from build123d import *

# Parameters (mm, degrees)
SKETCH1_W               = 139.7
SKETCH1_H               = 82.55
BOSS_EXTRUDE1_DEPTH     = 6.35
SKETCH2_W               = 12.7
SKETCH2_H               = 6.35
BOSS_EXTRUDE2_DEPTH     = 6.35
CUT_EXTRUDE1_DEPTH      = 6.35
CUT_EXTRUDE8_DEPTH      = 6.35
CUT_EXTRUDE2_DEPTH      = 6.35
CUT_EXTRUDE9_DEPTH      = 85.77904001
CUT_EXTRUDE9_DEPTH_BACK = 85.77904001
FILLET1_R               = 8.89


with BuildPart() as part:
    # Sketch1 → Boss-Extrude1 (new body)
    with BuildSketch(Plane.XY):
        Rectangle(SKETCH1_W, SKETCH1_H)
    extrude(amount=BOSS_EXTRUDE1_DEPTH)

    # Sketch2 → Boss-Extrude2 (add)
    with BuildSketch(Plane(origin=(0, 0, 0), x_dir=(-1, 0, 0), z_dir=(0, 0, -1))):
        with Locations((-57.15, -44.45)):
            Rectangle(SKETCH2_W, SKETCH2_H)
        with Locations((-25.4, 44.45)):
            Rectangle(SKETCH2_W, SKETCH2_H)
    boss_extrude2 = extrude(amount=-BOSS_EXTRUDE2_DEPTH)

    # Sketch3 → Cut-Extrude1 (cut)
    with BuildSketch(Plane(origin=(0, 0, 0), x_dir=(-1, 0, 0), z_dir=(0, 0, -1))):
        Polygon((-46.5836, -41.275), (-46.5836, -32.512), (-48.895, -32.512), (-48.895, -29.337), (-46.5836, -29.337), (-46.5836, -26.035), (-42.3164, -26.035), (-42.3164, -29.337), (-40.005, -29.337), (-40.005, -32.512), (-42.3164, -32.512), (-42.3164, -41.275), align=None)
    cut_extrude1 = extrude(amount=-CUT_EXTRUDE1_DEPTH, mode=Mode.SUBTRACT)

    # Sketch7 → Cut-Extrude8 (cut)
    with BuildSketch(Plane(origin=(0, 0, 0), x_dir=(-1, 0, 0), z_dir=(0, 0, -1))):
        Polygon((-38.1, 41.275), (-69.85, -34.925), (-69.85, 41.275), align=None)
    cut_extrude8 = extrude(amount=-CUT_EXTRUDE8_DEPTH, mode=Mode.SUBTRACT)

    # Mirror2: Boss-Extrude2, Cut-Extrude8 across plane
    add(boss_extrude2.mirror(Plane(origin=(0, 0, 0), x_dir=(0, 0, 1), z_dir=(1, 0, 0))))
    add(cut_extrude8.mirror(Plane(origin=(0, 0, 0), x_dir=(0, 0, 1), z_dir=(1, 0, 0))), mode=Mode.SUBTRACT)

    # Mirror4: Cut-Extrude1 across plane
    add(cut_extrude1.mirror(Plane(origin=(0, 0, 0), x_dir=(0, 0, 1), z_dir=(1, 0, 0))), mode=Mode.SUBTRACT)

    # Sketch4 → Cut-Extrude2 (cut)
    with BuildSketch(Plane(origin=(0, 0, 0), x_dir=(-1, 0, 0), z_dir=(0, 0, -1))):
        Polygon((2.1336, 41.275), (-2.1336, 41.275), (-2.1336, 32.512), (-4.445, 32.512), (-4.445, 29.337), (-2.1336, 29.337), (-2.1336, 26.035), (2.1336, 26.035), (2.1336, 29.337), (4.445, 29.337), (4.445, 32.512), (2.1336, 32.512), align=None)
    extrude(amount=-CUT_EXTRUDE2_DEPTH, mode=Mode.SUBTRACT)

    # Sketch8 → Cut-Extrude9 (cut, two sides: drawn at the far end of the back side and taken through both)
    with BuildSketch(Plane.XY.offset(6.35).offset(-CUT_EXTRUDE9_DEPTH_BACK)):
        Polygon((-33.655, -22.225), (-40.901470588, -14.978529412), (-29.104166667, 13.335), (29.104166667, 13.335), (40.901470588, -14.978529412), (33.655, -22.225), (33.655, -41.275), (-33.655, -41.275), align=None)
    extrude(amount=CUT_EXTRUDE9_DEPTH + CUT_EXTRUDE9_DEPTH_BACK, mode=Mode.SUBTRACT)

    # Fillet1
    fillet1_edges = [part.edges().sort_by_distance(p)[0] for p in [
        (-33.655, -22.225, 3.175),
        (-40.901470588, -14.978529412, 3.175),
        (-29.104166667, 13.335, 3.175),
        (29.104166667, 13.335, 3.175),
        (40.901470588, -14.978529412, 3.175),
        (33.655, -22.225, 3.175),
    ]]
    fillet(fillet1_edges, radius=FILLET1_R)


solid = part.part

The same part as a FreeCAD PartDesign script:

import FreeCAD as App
import Part
import Sketcher
from FreeCAD import Vector
Q = App.Units.Quantity


def edges_at(feature, points):
    """Names of the edges that pass closest to the given points."""
    edges = feature.Shape.Edges
    near = lambda p: min(range(len(edges)), key=lambda i: edges[i].distToShape(Part.Vertex(*p))[0])
    return sorted({f"Edge{near(p) + 1}" for p in points})


def add_polygon(sketch, points):
    """Adds a closed chain of lines whose ends are joined by coincident constraints."""
    first, n = sketch.GeometryCount, len(points)
    for a, b in zip(points, points[1:] + points[:1]):
        sketch.addGeometry(Part.LineSegment(App.Vector(*a, 0), App.Vector(*b, 0)), False)
    for i in range(n):
        sketch.addConstraint(Sketcher.Constraint("Coincident", first + i, 2, first + (i + 1) % n, 1))

doc = App.newDocument("Part")
params = doc.addObject("Spreadsheet::Sheet", "Params")
for row, (alias, value) in enumerate([
    ("sketch1_width", "5.5 in"),
    ("sketch1_height", "3.25 in"),
    ("pad1_length", "0.25 in"),
    ("sketch2_width", "0.5 in"),
    ("sketch2_height", "0.25 in"),
    ("pad2_length", "0.25 in"),
    ("sketch3_height", "0.13 in"),
    ("sketch3_width", "0.168 in"),
    ("sketch3_width2", "0.091 in"),
    ("sketch3_height2", "0.345 in"),
    ("pocket1_length", "0.25 in"),
    ("sketch4_height", "3 in"),
    ("sketch4_width", "1.25 in"),
    ("pocket2_length", "0.25 in"),
    ("sketch5_height", "0.13 in"),
    ("sketch5_width", "0.168 in"),
    ("sketch5_width2", "0.091 in"),
    ("sketch5_height2", "0.345 in"),
    ("pocket3_length", "0.25 in"),
    ("sketch6_width", "2.65 in"),
    ("sketch6_height", "0.75 in"),
    ("fillet_radius", "0.35 in"),
], start=1):
    params.set(f"A{row}", alias)
    params.set(f"B{row}", "=" + value)
    params.setAlias(f"B{row}", alias)

body = doc.addObject("PartDesign::Body", "Body")

# Sketch on XY plane
sketch1 = body.newObject("Sketcher::SketchObject", "Sketch")
sketch1.AttachmentSupport = (doc.getObject("XY_Plane"), [""])
sketch1.MapMode = "FlatFace"
add_polygon(sketch1, [(-70, 41), (-70, -41), (70, -41), (70, 41)])  # lines 0-3
sketch1.addConstraint(Sketcher.Constraint("Vertical", 0))
sketch1.addConstraint(Sketcher.Constraint("Horizontal", 1))
sketch1.addConstraint(Sketcher.Constraint("Vertical", 2))
sketch1.addConstraint(Sketcher.Constraint("Horizontal", 3))
sketch1.addConstraint(Sketcher.Constraint("Symmetric", 0, 2, 2, 2, -1, 1))
sketch1.addConstraint(Sketcher.Constraint("DistanceX", 1, 1, 1, 2, Q("5.5 in")))
sketch1.addConstraint(Sketcher.Constraint("DistanceY", 0, 2, 0, 1, Q("3.25 in")))
sketch1.setExpression("Constraints[9]", "Params.sketch1_width")
sketch1.setExpression("Constraints[10]", "Params.sketch1_height")
pad1 = body.newObject("PartDesign::Pad", "Pad")
pad1.Profile = sketch1
pad1.setExpression("Length", "Params.pad1_length")

# Sketch on XY plane
sketch2 = body.newObject("Sketcher::SketchObject", "Sketch001")
sketch2.AttachmentSupport = (doc.getObject("XY_Plane"), [""])
sketch2.MapMode = "FlatFace"
add_polygon(sketch2, [(64, -41), (64, -48), (51, -48), (51, -41)])  # lines 0-3
add_polygon(sketch2, [(32, 48), (32, 41), (19, 41), (19, 48)])  # lines 4-7
sketch2.addConstraint(Sketcher.Constraint("Vertical", 0))
sketch2.addConstraint(Sketcher.Constraint("Horizontal", 1))
sketch2.addConstraint(Sketcher.Constraint("Vertical", 2))
sketch2.addConstraint(Sketcher.Constraint("Horizontal", 3))
sketch2.addConstraint(Sketcher.Constraint("Vertical", 4))
sketch2.addConstraint(Sketcher.Constraint("Horizontal", 5))
sketch2.addConstraint(Sketcher.Constraint("Vertical", 6))
sketch2.addConstraint(Sketcher.Constraint("Horizontal", 7))
sketch2.addConstraint(Sketcher.Constraint("Equal", 3, 5))
sketch2.addConstraint(Sketcher.Constraint("Equal", 2, 4))
sketch2.addConstraint(Sketcher.Constraint("DistanceX", 1, 2, 1, 1, Q("0.5 in")))
sketch2.addConstraint(Sketcher.Constraint("DistanceX", -1, 1, 1, 2, Q("2 in")))
sketch2.addConstraint(Sketcher.Constraint("DistanceY", 0, 2, 0, 1, Q("0.25 in")))
sketch2.addConstraint(Sketcher.Constraint("DistanceY", 1, 2, 4, 2, Q("3.5 in")))
sketch2.addConstraint(Sketcher.Constraint("DistanceX", -1, 1, 4, 2, Q("1.25 in")))
sketch2.addConstraint(Sketcher.Constraint("DistanceY", 0, 2, -1, 1, Q("1.875 in")))
sketch2.setExpression("Constraints[18]", "Params.sketch2_width")
sketch2.setExpression("Constraints[20]", "Params.sketch2_height")
pad2 = body.newObject("PartDesign::Pad", "Pad001")
pad2.Profile = sketch2
pad2.setExpression("Length", "Params.pad2_length")

# Sketch on XY plane
sketch3 = body.newObject("Sketcher::SketchObject", "Sketch002")
sketch3.AttachmentSupport = (doc.getObject("XY_Plane"), [""])
sketch3.MapMode = "FlatFace"
add_polygon(sketch3, [(46.6, -32.5), (46.6, -41.3), (42.3, -41.3), (42.3, -32.5), (40, -32.5), (40, -29.3), (42.3, -29.3), (42.3, -26), (46.6, -26), (46.6, -29.3), (48.9, -29.3), (48.9, -32.5)])  # lines 0-11
sketch3.addConstraint(Sketcher.Constraint("Vertical", 0))
sketch3.addConstraint(Sketcher.Constraint("Horizontal", 1))
sketch3.addConstraint(Sketcher.Constraint("Vertical", 2))
sketch3.addConstraint(Sketcher.Constraint("Horizontal", 3))
sketch3.addConstraint(Sketcher.Constraint("Vertical", 4))
sketch3.addConstraint(Sketcher.Constraint("Horizontal", 5))
sketch3.addConstraint(Sketcher.Constraint("Vertical", 6))
sketch3.addConstraint(Sketcher.Constraint("Horizontal", 7))
sketch3.addConstraint(Sketcher.Constraint("Vertical", 8))
sketch3.addConstraint(Sketcher.Constraint("Horizontal", 9))
sketch3.addConstraint(Sketcher.Constraint("Vertical", 10))
sketch3.addConstraint(Sketcher.Constraint("Horizontal", 11))
sketch3.addConstraint(Sketcher.Constraint("Horizontal", 5, 2, 8, 2))
sketch3.addConstraint(Sketcher.Constraint("Horizontal", 3, 2, 10, 2))
sketch3.addConstraint(Sketcher.Constraint("Vertical", 2, 2, 5, 2))
sketch3.addConstraint(Sketcher.Constraint("Vertical", 0, 2, 7, 2))
sketch3.addConstraint(Sketcher.Constraint("Equal", 5, 9))
sketch3.addConstraint(Sketcher.Constraint("DistanceY", 6, 1, 6, 2, Q("0.13 in")))
sketch3.addConstraint(Sketcher.Constraint("DistanceY", 1, 2, 6, 2, Q("0.6 in")))
sketch3.addConstraint(Sketcher.Constraint("DistanceX", 1, 2, 1, 1, Q("0.168 in")))
sketch3.addConstraint(Sketcher.Constraint("DistanceX", 3, 2, 3, 1, Q("0.091 in")))
sketch3.addConstraint(Sketcher.Constraint("DistanceY", 0, 2, 0, 1, Q("0.345 in")))
sketch3.addConstraint(Sketcher.Constraint("DistanceY", 2, 2, -1, 1, Q("1.28 in")))
sketch3.addConstraint(Sketcher.Constraint("DistanceX", -1, 1, 0, 2, Q("1.834 in")))
sketch3.setExpression("Constraints[29]", "Params.sketch3_height")
sketch3.setExpression("Constraints[31]", "Params.sketch3_width")
sketch3.setExpression("Constraints[32]", "Params.sketch3_width2")
sketch3.setExpression("Constraints[33]", "Params.sketch3_height2")
pocket1 = body.newObject("PartDesign::Pocket", "Pocket")
pocket1.Profile = sketch3
pocket1.setExpression("Length", "Params.pocket1_length")
pocket1.Reversed = True

# Sketch on XY plane
sketch4 = body.newObject("Sketcher::SketchObject", "Sketch003")
sketch4.AttachmentSupport = (doc.getObject("XY_Plane"), [""])
sketch4.MapMode = "FlatFace"
add_polygon(sketch4, [(70, -35), (38, 41), (70, 41)])  # lines 0-2
sketch4.addConstraint(Sketcher.Constraint("Horizontal", 1))
sketch4.addConstraint(Sketcher.Constraint("Vertical", 2))
sketch4.addConstraint(Sketcher.Constraint("DistanceY", 2, 2, 2, 1, Q("3 in")))
sketch4.addConstraint(Sketcher.Constraint("DistanceX", 1, 1, 1, 2, Q("1.25 in")))
sketch4.addConstraint(Sketcher.Constraint("DistanceX", -1, 1, 0, 2, Q("1.5 in")))
sketch4.addConstraint(Sketcher.Constraint("DistanceY", -1, 1, 0, 2, Q("1.625 in")))
sketch4.setExpression("Constraints[5]", "Params.sketch4_height")
sketch4.setExpression("Constraints[6]", "Params.sketch4_width")
pocket2 = body.newObject("PartDesign::Pocket", "Pocket001")
pocket2.Profile = sketch4
pocket2.setExpression("Length", "Params.pocket2_length")
pocket2.Reversed = True
doc.recompute()

mirrored = body.newObject("PartDesign::Mirrored", "Mirrored")
mirrored.Originals = [pad2, pocket2]
mirrored.MirrorPlane = (doc.getObject("YZ_Plane"), [""])
body.Tip = mirrored
doc.recompute()

mirrored2 = body.newObject("PartDesign::Mirrored", "Mirrored001")
mirrored2.Originals = [pocket1]
mirrored2.MirrorPlane = (doc.getObject("YZ_Plane"), [""])
body.Tip = mirrored2

# Sketch on XY plane
sketch5 = body.newObject("Sketcher::SketchObject", "Sketch004")
sketch5.AttachmentSupport = (doc.getObject("XY_Plane"), [""])
sketch5.MapMode = "FlatFace"
add_polygon(sketch5, [(-2.1, 41.3), (2.1, 41.3), (2.1, 32.5), (4.4, 32.5), (4.4, 29.3), (2.1, 29.3), (2.1, 26), (-2.1, 26), (-2.1, 29.3), (-4.4, 29.3), (-4.4, 32.5), (-2.1, 32.5)])  # lines 0-11
sketch5.addConstraint(Sketcher.Constraint("Horizontal", 0))
sketch5.addConstraint(Sketcher.Constraint("Vertical", 1))
sketch5.addConstraint(Sketcher.Constraint("Horizontal", 2))
sketch5.addConstraint(Sketcher.Constraint("Vertical", 3))
sketch5.addConstraint(Sketcher.Constraint("Horizontal", 4))
sketch5.addConstraint(Sketcher.Constraint("Vertical", 5))
sketch5.addConstraint(Sketcher.Constraint("Horizontal", 6))
sketch5.addConstraint(Sketcher.Constraint("Vertical", 7))
sketch5.addConstraint(Sketcher.Constraint("Horizontal", 8))
sketch5.addConstraint(Sketcher.Constraint("Vertical", 9))
sketch5.addConstraint(Sketcher.Constraint("Horizontal", 10))
sketch5.addConstraint(Sketcher.Constraint("Vertical", 11))
sketch5.addConstraint(Sketcher.Constraint("Symmetric", 4, 2, 7, 2, -2))
sketch5.addConstraint(Sketcher.Constraint("Symmetric", 2, 2, 9, 2, -2))
sketch5.addConstraint(Sketcher.Constraint("Vertical", 1, 2, 4, 2))
sketch5.addConstraint(Sketcher.Constraint("Vertical", 7, 2, 10, 2))
sketch5.addConstraint(Sketcher.Constraint("DistanceY", 5, 2, 5, 1, Q("0.13 in")))
sketch5.addConstraint(Sketcher.Constraint("DistanceY", 5, 2, 0, 2, Q("0.6 in")))
sketch5.addConstraint(Sketcher.Constraint("DistanceX", 0, 1, 0, 2, Q("0.168 in")))
sketch5.addConstraint(Sketcher.Constraint("DistanceX", 2, 1, 2, 2, Q("0.091 in")))
sketch5.addConstraint(Sketcher.Constraint("DistanceY", 1, 2, 1, 1, Q("0.345 in")))
sketch5.addConstraint(Sketcher.Constraint("DistanceY", -1, 1, 1, 2, Q("1.28 in")))
sketch5.setExpression("Constraints[28]", "Params.sketch5_height")
sketch5.setExpression("Constraints[30]", "Params.sketch5_width")
sketch5.setExpression("Constraints[31]", "Params.sketch5_width2")
sketch5.setExpression("Constraints[32]", "Params.sketch5_height2")
pocket3 = body.newObject("PartDesign::Pocket", "Pocket002")
pocket3.Profile = sketch5
pocket3.setExpression("Length", "Params.pocket3_length")
pocket3.Reversed = True

# Sketch on XY plane
sketch6 = body.newObject("Sketcher::SketchObject", "Sketch005")
sketch6.AttachmentSupport = (doc.getObject("XY_Plane"), [""])
sketch6.MapMode = "FlatFace"
sketch6.AttachmentOffset = App.Placement(Vector(0, 0, 0.25 * 25.4), App.Rotation())
add_polygon(sketch6, [(-41, -15), (-34, -22), (-34, -41), (34, -41), (34, -22), (41, -15), (29, 13), (-29, 13)])  # lines 0-7
sketch6.addConstraint(Sketcher.Constraint("Vertical", 1))
sketch6.addConstraint(Sketcher.Constraint("Horizontal", 2))
sketch6.addConstraint(Sketcher.Constraint("Vertical", 3))
sketch6.addConstraint(Sketcher.Constraint("Horizontal", 6))
sketch6.addConstraint(Sketcher.Constraint("Symmetric", 0, 2, 3, 2, -2))
sketch6.addConstraint(Sketcher.Constraint("Symmetric", 4, 2, 7, 2, -2))
sketch6.addConstraint(Sketcher.Constraint("Perpendicular", 0, 4))
sketch6.addConstraint(Sketcher.Constraint("Equal", 5, 7))
sketch6.addConstraint(Sketcher.Constraint("DistanceX", 2, 1, 2, 2, Q("2.65 in")))
sketch6.addConstraint(Sketcher.Constraint("DistanceY", 1, 2, 1, 1, Q("0.75 in")))
sketch6.addConstraint(Sketcher.Constraint("DistanceY", 3, 2, 5, 2, Q("1.4 in")))
sketch6.addConstraint(Sketcher.Constraint("DistanceY", 0, 2, -1, 1, Q("0.875 in")))
sketch6.addConstraint(Sketcher.Constraint("Distance", 5, Q("30.67299 mm")))
sketch6.addConstraint(Sketcher.Constraint("DistanceX", 6, 2, 6, 1, Q("58.208333 mm")))
sketch6.setExpression("Constraints[16]", "Params.sketch6_width")
sketch6.setExpression("Constraints[17]", "Params.sketch6_height")
pocket4 = body.newObject("PartDesign::Pocket", "Pocket003")
pocket4.Profile = sketch6
pocket4.Type = "ThroughAll"
pocket4.Midplane = True
doc.recompute()

fillet = body.newObject("PartDesign::Fillet", "Fillet")
fillet.Base = (pocket4, edges_at(pocket4, [
    (-33.655, -22.225, 3.175),
    (-40.901, -14.979, 3.175),
    (-29.104, 13.335, 3.175),
    (29.104, 13.335, 3.175),
    (40.901, -14.979, 3.175),
    (33.655, -22.225, 3.175),
]))
fillet.setExpression("Radius", "Params.fillet_radius")

doc.recompute()
